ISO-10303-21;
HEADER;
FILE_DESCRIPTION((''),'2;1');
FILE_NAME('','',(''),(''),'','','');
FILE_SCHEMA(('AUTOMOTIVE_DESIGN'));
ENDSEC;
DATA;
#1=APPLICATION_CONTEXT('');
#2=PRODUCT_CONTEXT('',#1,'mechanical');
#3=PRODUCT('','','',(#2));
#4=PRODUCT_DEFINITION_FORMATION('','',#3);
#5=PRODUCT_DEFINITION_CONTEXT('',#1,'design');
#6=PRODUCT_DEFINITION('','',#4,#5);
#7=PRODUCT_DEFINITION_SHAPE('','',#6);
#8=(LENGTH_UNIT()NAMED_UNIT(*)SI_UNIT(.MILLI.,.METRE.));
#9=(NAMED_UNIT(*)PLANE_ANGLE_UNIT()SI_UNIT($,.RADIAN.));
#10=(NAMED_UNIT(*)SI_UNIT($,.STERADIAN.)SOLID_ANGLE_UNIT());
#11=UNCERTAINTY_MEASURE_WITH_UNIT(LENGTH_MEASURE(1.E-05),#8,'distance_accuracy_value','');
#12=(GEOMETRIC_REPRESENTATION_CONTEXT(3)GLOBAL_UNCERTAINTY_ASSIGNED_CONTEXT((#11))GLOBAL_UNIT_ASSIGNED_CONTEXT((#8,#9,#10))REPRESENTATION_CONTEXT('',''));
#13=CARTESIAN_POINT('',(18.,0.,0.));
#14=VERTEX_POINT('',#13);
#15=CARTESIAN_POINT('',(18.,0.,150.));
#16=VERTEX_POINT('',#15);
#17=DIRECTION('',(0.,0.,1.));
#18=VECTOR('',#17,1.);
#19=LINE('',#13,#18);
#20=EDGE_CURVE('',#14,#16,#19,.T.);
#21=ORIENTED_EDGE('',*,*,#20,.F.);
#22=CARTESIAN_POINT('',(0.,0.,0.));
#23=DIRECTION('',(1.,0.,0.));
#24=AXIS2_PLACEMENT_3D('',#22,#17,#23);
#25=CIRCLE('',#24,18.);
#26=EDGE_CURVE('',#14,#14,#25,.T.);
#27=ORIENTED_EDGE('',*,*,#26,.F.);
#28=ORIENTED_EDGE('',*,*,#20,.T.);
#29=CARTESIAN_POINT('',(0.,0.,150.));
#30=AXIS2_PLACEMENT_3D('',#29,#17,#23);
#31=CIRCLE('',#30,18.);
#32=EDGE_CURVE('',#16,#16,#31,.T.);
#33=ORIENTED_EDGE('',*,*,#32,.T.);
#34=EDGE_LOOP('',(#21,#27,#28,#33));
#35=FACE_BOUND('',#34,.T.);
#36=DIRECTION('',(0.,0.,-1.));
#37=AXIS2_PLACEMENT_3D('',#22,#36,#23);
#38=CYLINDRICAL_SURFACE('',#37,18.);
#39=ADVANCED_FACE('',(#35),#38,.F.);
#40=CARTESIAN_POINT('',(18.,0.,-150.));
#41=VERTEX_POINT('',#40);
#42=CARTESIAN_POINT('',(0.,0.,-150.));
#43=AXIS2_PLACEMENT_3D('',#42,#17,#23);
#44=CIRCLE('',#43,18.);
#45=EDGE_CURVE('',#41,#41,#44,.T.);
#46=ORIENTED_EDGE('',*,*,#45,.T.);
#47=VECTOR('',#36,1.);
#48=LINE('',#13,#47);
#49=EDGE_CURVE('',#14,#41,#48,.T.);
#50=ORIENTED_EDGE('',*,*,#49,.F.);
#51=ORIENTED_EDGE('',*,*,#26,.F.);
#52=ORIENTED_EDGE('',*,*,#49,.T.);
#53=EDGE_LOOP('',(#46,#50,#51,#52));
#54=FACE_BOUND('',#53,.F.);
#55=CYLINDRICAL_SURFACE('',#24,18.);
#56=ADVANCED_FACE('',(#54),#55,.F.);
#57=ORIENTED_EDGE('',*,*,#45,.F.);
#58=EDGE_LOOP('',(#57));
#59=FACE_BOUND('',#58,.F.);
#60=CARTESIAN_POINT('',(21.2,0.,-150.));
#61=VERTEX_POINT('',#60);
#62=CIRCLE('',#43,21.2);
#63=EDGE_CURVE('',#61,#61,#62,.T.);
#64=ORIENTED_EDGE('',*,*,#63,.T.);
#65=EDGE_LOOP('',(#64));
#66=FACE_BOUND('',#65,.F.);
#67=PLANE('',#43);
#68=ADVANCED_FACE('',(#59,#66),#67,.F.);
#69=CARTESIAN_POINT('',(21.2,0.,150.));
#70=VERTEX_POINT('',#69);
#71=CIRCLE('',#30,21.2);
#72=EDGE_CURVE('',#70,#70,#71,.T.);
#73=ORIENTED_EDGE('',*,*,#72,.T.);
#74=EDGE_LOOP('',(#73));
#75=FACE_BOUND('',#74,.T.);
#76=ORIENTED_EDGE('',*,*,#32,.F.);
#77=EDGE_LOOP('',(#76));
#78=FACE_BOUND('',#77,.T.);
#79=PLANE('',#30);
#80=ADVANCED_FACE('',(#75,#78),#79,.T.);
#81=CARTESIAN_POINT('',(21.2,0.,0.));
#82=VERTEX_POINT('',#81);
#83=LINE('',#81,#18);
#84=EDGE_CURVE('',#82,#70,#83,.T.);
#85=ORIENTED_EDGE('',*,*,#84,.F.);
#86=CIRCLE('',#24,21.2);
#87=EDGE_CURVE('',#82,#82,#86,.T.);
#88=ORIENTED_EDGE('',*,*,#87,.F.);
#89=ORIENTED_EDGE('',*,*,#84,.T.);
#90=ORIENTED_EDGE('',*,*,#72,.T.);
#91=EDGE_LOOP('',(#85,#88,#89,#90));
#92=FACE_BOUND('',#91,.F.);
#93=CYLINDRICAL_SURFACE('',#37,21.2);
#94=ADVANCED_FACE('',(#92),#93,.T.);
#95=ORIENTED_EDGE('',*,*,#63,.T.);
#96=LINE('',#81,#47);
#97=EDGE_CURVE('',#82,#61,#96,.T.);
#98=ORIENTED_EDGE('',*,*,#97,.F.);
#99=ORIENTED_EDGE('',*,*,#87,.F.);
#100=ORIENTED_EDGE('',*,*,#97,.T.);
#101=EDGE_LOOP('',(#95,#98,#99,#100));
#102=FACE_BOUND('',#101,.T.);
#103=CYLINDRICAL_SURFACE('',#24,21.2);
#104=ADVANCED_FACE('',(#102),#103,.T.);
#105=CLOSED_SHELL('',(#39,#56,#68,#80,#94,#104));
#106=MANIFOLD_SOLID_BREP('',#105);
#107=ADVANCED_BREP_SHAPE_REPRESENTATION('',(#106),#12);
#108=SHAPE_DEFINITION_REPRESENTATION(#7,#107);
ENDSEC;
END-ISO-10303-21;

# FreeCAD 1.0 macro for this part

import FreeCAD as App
import Part
import Sketcher

doc = App.newDocument("Part")
body = doc.addObject("PartDesign::Body", "Body")

# Sketch on XY plane
sketch1 = body.newObject("Sketcher::SketchObject", "Sketch")
sketch1.AttachmentSupport = (doc.getObject("XY_Plane"), [""])
sketch1.MapMode = "FlatFace"
sketch1.addGeometry(Part.Circle(App.Vector(0, 0, 0), App.Vector(0, 0, 1), 21.2), False)
sketch1.addGeometry(Part.Circle(App.Vector(0, 0, 0), App.Vector(0, 0, 1), 18), False)
sketch1.addConstraint(Sketcher.Constraint("Coincident", 0, 3, -1, 1))
sketch1.addConstraint(Sketcher.Constraint("Coincident", 1, 3, -1, 1))
sketch1.addConstraint(Sketcher.Constraint("Diameter", 0, 42.4))
sketch1.addConstraint(Sketcher.Constraint("Diameter", 1, 36.0))
pad1 = body.newObject("PartDesign::Pad", "Pad")
pad1.Profile = sketch1
pad1.Length = 300
pad1.Midplane = True

doc.recompute()
